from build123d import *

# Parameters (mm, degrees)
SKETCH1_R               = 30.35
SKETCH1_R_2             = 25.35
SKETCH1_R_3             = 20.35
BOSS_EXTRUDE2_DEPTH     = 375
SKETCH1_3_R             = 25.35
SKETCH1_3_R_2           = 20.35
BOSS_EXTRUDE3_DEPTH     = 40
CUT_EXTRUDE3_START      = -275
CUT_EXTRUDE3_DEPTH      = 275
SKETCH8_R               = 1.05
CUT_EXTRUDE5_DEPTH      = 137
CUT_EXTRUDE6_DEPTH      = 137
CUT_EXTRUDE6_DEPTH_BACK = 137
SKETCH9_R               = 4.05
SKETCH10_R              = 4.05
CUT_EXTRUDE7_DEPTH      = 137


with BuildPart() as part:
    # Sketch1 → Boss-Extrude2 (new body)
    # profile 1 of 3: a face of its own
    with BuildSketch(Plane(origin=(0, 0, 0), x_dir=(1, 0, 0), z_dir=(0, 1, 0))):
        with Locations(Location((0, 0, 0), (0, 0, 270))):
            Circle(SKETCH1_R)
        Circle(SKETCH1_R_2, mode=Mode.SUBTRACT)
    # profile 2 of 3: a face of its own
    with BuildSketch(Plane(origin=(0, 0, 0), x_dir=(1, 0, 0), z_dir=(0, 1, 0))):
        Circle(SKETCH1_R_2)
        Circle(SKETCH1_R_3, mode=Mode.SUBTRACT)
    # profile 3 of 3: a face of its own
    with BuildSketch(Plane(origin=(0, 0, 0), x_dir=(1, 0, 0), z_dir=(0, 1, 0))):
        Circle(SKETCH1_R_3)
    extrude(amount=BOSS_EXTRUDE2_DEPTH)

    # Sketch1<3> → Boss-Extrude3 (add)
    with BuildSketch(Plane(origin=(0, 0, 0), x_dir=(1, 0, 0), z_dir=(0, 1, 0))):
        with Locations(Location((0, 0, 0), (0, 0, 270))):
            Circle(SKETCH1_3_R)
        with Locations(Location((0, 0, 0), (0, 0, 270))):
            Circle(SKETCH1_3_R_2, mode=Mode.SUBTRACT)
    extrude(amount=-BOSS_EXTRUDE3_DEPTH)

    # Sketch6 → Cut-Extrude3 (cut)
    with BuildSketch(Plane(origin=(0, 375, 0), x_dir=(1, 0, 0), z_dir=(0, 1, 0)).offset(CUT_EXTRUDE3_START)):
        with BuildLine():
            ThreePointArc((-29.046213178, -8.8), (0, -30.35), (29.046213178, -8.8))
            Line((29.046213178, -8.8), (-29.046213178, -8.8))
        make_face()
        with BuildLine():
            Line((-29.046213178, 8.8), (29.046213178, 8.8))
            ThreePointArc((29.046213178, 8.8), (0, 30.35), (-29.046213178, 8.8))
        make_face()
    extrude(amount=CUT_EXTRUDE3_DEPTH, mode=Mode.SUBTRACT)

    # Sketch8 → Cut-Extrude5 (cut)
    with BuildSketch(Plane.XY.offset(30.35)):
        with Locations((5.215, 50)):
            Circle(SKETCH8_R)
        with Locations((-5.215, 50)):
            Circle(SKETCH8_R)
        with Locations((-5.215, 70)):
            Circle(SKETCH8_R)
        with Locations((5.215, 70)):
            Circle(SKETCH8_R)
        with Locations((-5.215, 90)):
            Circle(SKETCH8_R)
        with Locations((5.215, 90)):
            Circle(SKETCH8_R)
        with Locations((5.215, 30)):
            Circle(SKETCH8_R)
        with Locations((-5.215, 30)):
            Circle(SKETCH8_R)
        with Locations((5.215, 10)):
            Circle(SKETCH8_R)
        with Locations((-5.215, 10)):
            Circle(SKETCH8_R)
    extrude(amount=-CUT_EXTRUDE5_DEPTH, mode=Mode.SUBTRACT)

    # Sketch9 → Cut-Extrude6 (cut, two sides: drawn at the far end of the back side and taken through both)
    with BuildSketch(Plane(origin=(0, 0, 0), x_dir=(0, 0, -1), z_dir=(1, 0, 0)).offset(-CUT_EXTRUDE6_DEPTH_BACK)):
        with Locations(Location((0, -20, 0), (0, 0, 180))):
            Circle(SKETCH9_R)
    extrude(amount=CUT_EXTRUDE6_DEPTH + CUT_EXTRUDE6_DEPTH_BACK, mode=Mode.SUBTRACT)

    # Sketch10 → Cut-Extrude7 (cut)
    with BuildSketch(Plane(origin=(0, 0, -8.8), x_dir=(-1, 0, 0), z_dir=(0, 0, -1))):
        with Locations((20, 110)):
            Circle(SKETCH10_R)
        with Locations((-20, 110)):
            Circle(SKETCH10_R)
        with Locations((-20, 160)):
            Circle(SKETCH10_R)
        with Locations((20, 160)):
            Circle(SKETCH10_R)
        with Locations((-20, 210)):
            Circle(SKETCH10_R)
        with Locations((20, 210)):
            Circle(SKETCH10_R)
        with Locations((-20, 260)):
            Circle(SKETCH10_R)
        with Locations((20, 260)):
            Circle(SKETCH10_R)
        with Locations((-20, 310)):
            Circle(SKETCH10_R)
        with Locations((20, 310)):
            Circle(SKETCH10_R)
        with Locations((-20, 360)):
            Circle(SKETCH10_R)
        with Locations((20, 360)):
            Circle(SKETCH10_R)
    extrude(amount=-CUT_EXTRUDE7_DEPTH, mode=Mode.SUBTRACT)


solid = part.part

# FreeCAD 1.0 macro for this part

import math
import FreeCAD as App
import Part
import Sketcher
from FreeCAD import Vector
Q = App.Units.Quantity

doc = App.newDocument("Part")
body = doc.addObject("PartDesign::Body", "Body")

# Sketch on XZ plane
sketch1 = body.newObject("Sketcher::SketchObject", "Sketch")
sketch1.AttachmentSupport = (doc.getObject("XZ_Plane"), [""])
sketch1.MapMode = "FlatFace"
sketch1.addGeometry(Part.Circle(Vector(0, 0, 0), Vector(0, 0, 1), 30), False)
sketch1.addConstraint([
    Sketcher.Constraint("Coincident", 0, 3, -1, 1),
    Sketcher.Constraint("Diameter", 0, Q("60.7 mm")),
])
pad1 = body.newObject("PartDesign::Pad", "Pad")
pad1.Profile = sketch1
pad1.Length = 375
pad1.Reversed = True

# Sketch on XZ plane
sketch2 = body.newObject("Sketcher::SketchObject", "Sketch001")
sketch2.AttachmentSupport = (doc.getObject("XZ_Plane"), [""])
sketch2.MapMode = "FlatFace"
sketch2.addGeometry([
    Part.Circle(Vector(0, 0, 0), Vector(0, 0, 1), 25),
    Part.Circle(Vector(0, 0, 0), Vector(0, 0, 1), 20),
], False)
sketch2.addConstraint([
    Sketcher.Constraint("Coincident", 0, 3, -1, 1),
    Sketcher.Constraint("Coincident", 1, 3, -1, 1),
    Sketcher.Constraint("Diameter", 0, Q("50.7 mm")),
    Sketcher.Constraint("Diameter", 1, Q("40.7 mm")),
])
pad2 = body.newObject("PartDesign::Pad", "Pad001")
pad2.Profile = sketch2
pad2.Length = 40

# Sketch on XZ plane
sketch3 = body.newObject("Sketcher::SketchObject", "Sketch002")
sketch3.AttachmentSupport = (doc.getObject("XZ_Plane"), [""])
sketch3.MapMode = "FlatFace"
sketch3.AttachmentOffset = App.Placement(Vector(0, 0, -100), App.Rotation())
sketch3.addGeometry([
    Part.ArcOfCircle(Part.Circle(Vector(0, 0, 0), Vector(0, 0, 1), 30), math.radians(17), math.radians(163)),
    Part.LineSegment(Vector(29, 9, 0), Vector(-29, 9, 0)),
    Part.LineSegment(Vector(-29, -9, 0), Vector(29, -9, 0)),
    Part.ArcOfCircle(Part.Circle(Vector(0, 0, 0), Vector(0, 0, 1), 30), math.radians(-163), math.radians(-17)),
], False)
sketch3.addConstraint([
    Sketcher.Constraint("Coincident", 0, 1, 1, 1),
    Sketcher.Constraint("Coincident", 1, 2, 0, 2),
    Sketcher.Constraint("Coincident", 2, 1, 3, 1),
    Sketcher.Constraint("Coincident", 3, 2, 2, 2),
    Sketcher.Constraint("Horizontal", 1),
    Sketcher.Constraint("Horizontal", 2),
    Sketcher.Constraint("Coincident", 0, 3, -1, 1),
    Sketcher.Constraint("Coincident", 3, 3, -1, 1),
    Sketcher.Constraint("Equal", 0, 3),
    Sketcher.Constraint("Vertical", 1, 2, 2, 1),
    Sketcher.Constraint("Radius", 0, Q("30.35 mm")),
    Sketcher.Constraint("DistanceY", -1, 1, 0, 1, Q("8.8 mm")),
])
pocket1 = body.newObject("PartDesign::Pocket", "Pocket")
pocket1.Profile = sketch3
pocket1.Length = 275

# Sketch on XY plane
sketch4 = body.newObject("Sketcher::SketchObject", "Sketch003")
sketch4.AttachmentSupport = (doc.getObject("XY_Plane"), [""])
sketch4.MapMode = "FlatFace"
sketch4.AttachmentOffset = App.Placement(Vector(0, 0, 30.35), App.Rotation())
sketch4.addGeometry([
    Part.Circle(Vector(5.2, 50, 0), Vector(0, 0, 1), 1.1),  # 0
    Part.Circle(Vector(-5.2, 50, 0), Vector(0, 0, 1), 1.1),  # 1
    Part.Circle(Vector(-5.2, 70, 0), Vector(0, 0, 1), 1.1),  # 2
    Part.Circle(Vector(5.2, 70, 0), Vector(0, 0, 1), 1.1),  # 3
    Part.Circle(Vector(-5.2, 90, 0), Vector(0, 0, 1), 1.1),  # 4
    Part.Circle(Vector(5.2, 90, 0), Vector(0, 0, 1), 1.1),  # 5
    Part.Circle(Vector(5.2, 30, 0), Vector(0, 0, 1), 1.1),  # 6
    Part.Circle(Vector(-5.2, 30, 0), Vector(0, 0, 1), 1.1),  # 7
    Part.Circle(Vector(5.2, 10, 0), Vector(0, 0, 1), 1.1),  # 8
    Part.Circle(Vector(-5.2, 10, 0), Vector(0, 0, 1), 1.1),  # 9
], False)
sketch4.addConstraint([
    Sketcher.Constraint("Equal", 0, 1),
    Sketcher.Constraint("Equal", 1, 2),
    Sketcher.Constraint("Equal", 2, 3),
    Sketcher.Constraint("Equal", 3, 4),
    Sketcher.Constraint("Equal", 4, 5),
    Sketcher.Constraint("Equal", 5, 6),
    Sketcher.Constraint("Equal", 6, 7),
    Sketcher.Constraint("Equal", 7, 8),
    Sketcher.Constraint("Equal", 8, 9),
    Sketcher.Constraint("Symmetric", 0, 3, 1, 3, -2),
    Sketcher.Constraint("Symmetric", 2, 3, 3, 3, -2),
    Sketcher.Constraint("Symmetric", 4, 3, 5, 3, -2),
    Sketcher.Constraint("Symmetric", 6, 3, 7, 3, -2),
    Sketcher.Constraint("Symmetric", 8, 3, 9, 3, -2),
    Sketcher.Constraint("Vertical", 1, 3, 2, 3),
    Sketcher.Constraint("Vertical", 2, 3, 4, 3),
    Sketcher.Constraint("Vertical", 5, 3, 6, 3),
    Sketcher.Constraint("Vertical", 6, 3, 8, 3),
    Sketcher.Constraint("Diameter", 0, Q("2.1 mm")),
    Sketcher.Constraint("DistanceY", -1, 1, 0, 3, Q("50 mm")),
    Sketcher.Constraint("DistanceY", -1, 1, 2, 3, Q("70 mm")),
    Sketcher.Constraint("DistanceY", -1, 1, 4, 3, Q("90 mm")),
    Sketcher.Constraint("DistanceY", -1, 1, 6, 3, Q("30 mm")),
    Sketcher.Constraint("DistanceY", -1, 1, 8, 3, Q("10 mm")),
    Sketcher.Constraint("DistanceX", 1, 3, 0, 3, Q("10.43 mm")),
])
pocket2 = body.newObject("PartDesign::Pocket", "Pocket001")
pocket2.Profile = sketch4
pocket2.Length = 137

# Sketch on YZ plane
sketch5 = body.newObject("Sketcher::SketchObject", "Sketch004")
sketch5.AttachmentSupport = (doc.getObject("YZ_Plane"), [""])
sketch5.MapMode = "FlatFace"
sketch5.addGeometry(Part.Circle(Vector(-20, 0, 0), Vector(0, 0, 1), 4), False)
sketch5.addConstraint([
    Sketcher.Constraint("PointOnObject", 0, 3, -1),
    Sketcher.Constraint("Diameter", 0, Q("8.1 mm")),
    Sketcher.Constraint("DistanceX", 0, 3, -1, 1, Q("20 mm")),
])
pocket3 = body.newObject("PartDesign::Pocket", "Pocket002")
pocket3.Profile = sketch5
pocket3.Type = "ThroughAll"
pocket3.Midplane = True

# Sketch on XY plane
sketch6 = body.newObject("Sketcher::SketchObject", "Sketch005")
sketch6.AttachmentSupport = (doc.getObject("XY_Plane"), [""])
sketch6.MapMode = "FlatFace"
sketch6.AttachmentOffset = App.Placement(Vector(0, 0, -8.8), App.Rotation())
sketch6.addGeometry([
    Part.Circle(Vector(-20, 110, 0), Vector(0, 0, 1), 4),  # 0
    Part.Circle(Vector(20, 110, 0), Vector(0, 0, 1), 4),  # 1
    Part.Circle(Vector(20, 160, 0), Vector(0, 0, 1), 4),  # 2
    Part.Circle(Vector(-20, 160, 0), Vector(0, 0, 1), 4),  # 3
    Part.Circle(Vector(20, 210, 0), Vector(0, 0, 1), 4),  # 4
    Part.Circle(Vector(-20, 210, 0), Vector(0, 0, 1), 4),  # 5
    Part.Circle(Vector(20, 260, 0), Vector(0, 0, 1), 4),  # 6
    Part.Circle(Vector(-20, 260, 0), Vector(0, 0, 1), 4),  # 7
    Part.Circle(Vector(20, 310, 0), Vector(0, 0, 1), 4),  # 8
    Part.Circle(Vector(-20, 310, 0), Vector(0, 0, 1), 4),  # 9
    Part.Circle(Vector(20, 360, 0), Vector(0, 0, 1), 4),  # 10
    Part.Circle(Vector(-20, 360, 0), Vector(0, 0, 1), 4),  # 11
], False)
sketch6.addConstraint([
    Sketcher.Constraint("Equal", 0, 1),
    Sketcher.Constraint("Equal", 1, 2),
    Sketcher.Constraint("Equal", 2, 3),
    Sketcher.Constraint("Equal", 3, 4),
    Sketcher.Constraint("Equal", 4, 5),
    Sketcher.Constraint("Equal", 5, 6),
    Sketcher.Constraint("Equal", 6, 7),
    Sketcher.Constraint("Equal", 7, 8),
    Sketcher.Constraint("Equal", 8, 9),
    Sketcher.Constraint("Equal", 9, 10),
    Sketcher.Constraint("Equal", 10, 11),
    Sketcher.Constraint("Symmetric", 0, 3, 1, 3, -2),
    Sketcher.Constraint("Symmetric", 2, 3, 3, 3, -2),
    Sketcher.Constraint("Symmetric", 4, 3, 5, 3, -2),
    Sketcher.Constraint("Symmetric", 6, 3, 7, 3, -2),
    Sketcher.Constraint("Symmetric", 8, 3, 9, 3, -2),
    Sketcher.Constraint("Symmetric", 10, 3, 11, 3, -2),
    Sketcher.Constraint("Vertical", 1, 3, 2, 3),
    Sketcher.Constraint("Vertical", 2, 3, 4, 3),
    Sketcher.Constraint("Vertical", 4, 3, 6, 3),
    Sketcher.Constraint("Vertical", 6, 3, 8, 3),
    Sketcher.Constraint("Vertical", 8, 3, 10, 3),
    Sketcher.Constraint("Diameter", 0, Q("8.1 mm")),
    Sketcher.Constraint("DistanceX", 0, 3, -1, 1, Q("20 mm")),
    Sketcher.Constraint("DistanceY", -1, 1, 0, 3, Q("110 mm")),
    Sketcher.Constraint("DistanceY", -1, 1, 2, 3, Q("160 mm")),
    Sketcher.Constraint("DistanceY", -1, 1, 4, 3, Q("210 mm")),
    Sketcher.Constraint("DistanceY", -1, 1, 6, 3, Q("260 mm")),
    Sketcher.Constraint("DistanceY", -1, 1, 8, 3, Q("310 mm")),
    Sketcher.Constraint("DistanceY", -1, 1, 10, 3, Q("360 mm")),
])
pocket4 = body.newObject("PartDesign::Pocket", "Pocket003")
pocket4.Profile = sketch6
pocket4.Length = 137
pocket4.Reversed = True

doc.recompute()
